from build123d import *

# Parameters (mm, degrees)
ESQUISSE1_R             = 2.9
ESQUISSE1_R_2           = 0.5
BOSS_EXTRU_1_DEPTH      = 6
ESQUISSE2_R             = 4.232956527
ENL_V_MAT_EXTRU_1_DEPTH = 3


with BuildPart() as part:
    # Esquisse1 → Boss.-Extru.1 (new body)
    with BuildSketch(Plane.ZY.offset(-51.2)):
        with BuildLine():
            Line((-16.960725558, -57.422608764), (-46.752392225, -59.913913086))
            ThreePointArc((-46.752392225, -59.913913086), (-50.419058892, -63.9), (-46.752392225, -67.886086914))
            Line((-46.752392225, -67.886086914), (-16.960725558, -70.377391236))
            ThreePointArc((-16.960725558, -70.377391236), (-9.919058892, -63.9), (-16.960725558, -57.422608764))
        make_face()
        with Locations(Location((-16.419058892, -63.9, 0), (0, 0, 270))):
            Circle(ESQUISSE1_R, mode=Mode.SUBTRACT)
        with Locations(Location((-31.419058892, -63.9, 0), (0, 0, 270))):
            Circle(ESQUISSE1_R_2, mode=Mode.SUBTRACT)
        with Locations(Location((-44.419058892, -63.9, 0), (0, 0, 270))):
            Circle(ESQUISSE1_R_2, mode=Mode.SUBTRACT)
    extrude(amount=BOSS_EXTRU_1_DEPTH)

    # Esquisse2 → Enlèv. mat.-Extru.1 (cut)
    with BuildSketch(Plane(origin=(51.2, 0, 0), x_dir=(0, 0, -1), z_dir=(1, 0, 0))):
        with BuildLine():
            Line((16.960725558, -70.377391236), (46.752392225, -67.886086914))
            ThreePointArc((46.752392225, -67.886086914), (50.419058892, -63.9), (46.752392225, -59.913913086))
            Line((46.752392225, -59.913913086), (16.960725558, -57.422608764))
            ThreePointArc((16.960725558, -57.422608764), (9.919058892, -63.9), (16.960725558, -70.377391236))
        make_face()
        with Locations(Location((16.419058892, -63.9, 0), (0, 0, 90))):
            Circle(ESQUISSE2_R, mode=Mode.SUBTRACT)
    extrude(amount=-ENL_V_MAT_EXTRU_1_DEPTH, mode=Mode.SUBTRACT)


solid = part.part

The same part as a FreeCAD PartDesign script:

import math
import FreeCAD as App
import Part
import Sketcher
from FreeCAD import Vector

doc = App.newDocument("Part")
body = doc.addObject("PartDesign::Body", "Body")

# Sketch on YZ plane
sketch1 = body.newObject("Sketcher::SketchObject", "Sketch")
sketch1.AttachmentSupport = (doc.getObject("YZ_Plane"), [""])
sketch1.MapMode = "FlatFace"
sketch1.AttachmentOffset = App.Placement(Vector(0, 0, 51.2), App.Rotation())
sketch1.addGeometry(Part.LineSegment(Vector(-57.4, -17, 0), Vector(-59.9, -46.8, 0)), False)
sketch1.addGeometry(Part.ArcOfCircle(Part.Circle(Vector(-63.9, -46.4, 0), Vector(0, 0, 1), 4), math.radians(-175), math.radians(-5)), False)
sketch1.addGeometry(Part.LineSegment(Vector(-67.9, -46.8, 0), Vector(-70.4, -17, 0)), False)
sketch1.addGeometry(Part.ArcOfCircle(Part.Circle(Vector(-63.9, -16.4, 0), Vector(0, 0, 1), 6.5), math.radians(-5), math.radians(185)), False)
sketch1.addGeometry(Part.Circle(Vector(-63.9, -44.4, 0), Vector(0, 0, 1), 0.5), False)
sketch1.addGeometry(Part.Circle(Vector(-63.9, -31.4, 0), Vector(0, 0, 1), 0.5), False)
sketch1.addGeometry(Part.Circle(Vector(-63.9, -16.4, 0), Vector(0, 0, 1), 2.9), False)
sketch1.addConstraint(Sketcher.Constraint("Tangent", 0, 2, 1, 2))
sketch1.addConstraint(Sketcher.Constraint("Tangent", 1, 1, 2, 1))
sketch1.addConstraint(Sketcher.Constraint("Tangent", 2, 2, 3, 2))
sketch1.addConstraint(Sketcher.Constraint("Tangent", 3, 1, 0, 1))
sketch1.addConstraint(Sketcher.Constraint("Coincident", 6, 3, 3, 3))
sketch1.addConstraint(Sketcher.Constraint("Equal", 4, 5))
sketch1.addConstraint(Sketcher.Constraint("Horizontal", 0, 2, 1, 1))
sketch1.addConstraint(Sketcher.Constraint("Vertical", 3, 3, 4, 3))
sketch1.addConstraint(Sketcher.Constraint("Vertical", 4, 3, 5, 3))
sketch1.addConstraint(Sketcher.Constraint("Diameter", 4, 1.0))
sketch1.addConstraint(Sketcher.Constraint("Radius", 1, 4.0))
sketch1.addConstraint(Sketcher.Constraint("Diameter", 6, 5.8))
sketch1.addConstraint(Sketcher.Constraint("Radius", 3, 6.5))
sketch1.addConstraint(Sketcher.Constraint("DistanceY", 1, 3, 3, 3, 30.0))
sketch1.addConstraint(Sketcher.Constraint("DistanceY", 1, 3, 4, 3, 2.0))
sketch1.addConstraint(Sketcher.Constraint("DistanceY", 4, 3, 5, 3, 13.0))
sketch1.addConstraint(Sketcher.Constraint("DistanceX", 1, 3, -1, 1, 63.9))
sketch1.addConstraint(Sketcher.Constraint("DistanceY", 1, 3, -1, 1, 46.419059))
pad1 = body.newObject("PartDesign::Pad", "Pad")
pad1.Profile = sketch1
pad1.Length = 6
pad1.Reversed = True

# Sketch on YZ plane
sketch2 = body.newObject("Sketcher::SketchObject", "Sketch001")
sketch2.AttachmentSupport = (doc.getObject("YZ_Plane"), [""])
sketch2.MapMode = "FlatFace"
sketch2.AttachmentOffset = App.Placement(Vector(0, 0, 51.2), App.Rotation())
sketch2.addGeometry(Part.LineSegment(Vector(-70.4, -17, 0), Vector(-67.9, -46.8, 0)), False)
sketch2.addGeometry(Part.ArcOfCircle(Part.Circle(Vector(-63.9, -46.4, 0), Vector(0, 0, 1), 4), math.radians(-175), math.radians(-5)), False)
sketch2.addGeometry(Part.LineSegment(Vector(-59.9, -46.8, 0), Vector(-57.4, -17, 0)), False)
sketch2.addGeometry(Part.ArcOfCircle(Part.Circle(Vector(-63.9, -16.4, 0), Vector(0, 0, 1), 6.5), math.radians(-5), math.radians(185)), False)
sketch2.addGeometry(Part.Circle(Vector(-63.9, -16.4, 0), Vector(0, 0, 1), 4.2), False)
sketch2.addConstraint(Sketcher.Constraint("Tangent", 0, 2, 1, 1))
sketch2.addConstraint(Sketcher.Constraint("Tangent", 1, 2, 2, 1))
sketch2.addConstraint(Sketcher.Constraint("Tangent", 2, 2, 3, 1))
sketch2.addConstraint(Sketcher.Constraint("Tangent", 3, 2, 0, 1))
sketch2.addConstraint(Sketcher.Constraint("Coincident", 4, 3, 3, 3))
sketch2.addConstraint(Sketcher.Constraint("Horizontal", 0, 2, 1, 2))
sketch2.addConstraint(Sketcher.Constraint("Radius", 1, 4.0))
sketch2.addConstraint(Sketcher.Constraint("Radius", 3, 6.5))
sketch2.addConstraint(Sketcher.Constraint("DistanceY", 1, 3, 3, 3, 30.0))
sketch2.addConstraint(Sketcher.Constraint("DistanceX", 1, 3, -1, 1, 63.9))
sketch2.addConstraint(Sketcher.Constraint("Diameter", 4, 8.465913))
sketch2.addConstraint(Sketcher.Constraint("DistanceY", 1, 3, -1, 1, 46.419059))
pocket1 = body.newObject("PartDesign::Pocket", "Pocket")
pocket1.Profile = sketch2
pocket1.Length = 3

doc.recompute()
